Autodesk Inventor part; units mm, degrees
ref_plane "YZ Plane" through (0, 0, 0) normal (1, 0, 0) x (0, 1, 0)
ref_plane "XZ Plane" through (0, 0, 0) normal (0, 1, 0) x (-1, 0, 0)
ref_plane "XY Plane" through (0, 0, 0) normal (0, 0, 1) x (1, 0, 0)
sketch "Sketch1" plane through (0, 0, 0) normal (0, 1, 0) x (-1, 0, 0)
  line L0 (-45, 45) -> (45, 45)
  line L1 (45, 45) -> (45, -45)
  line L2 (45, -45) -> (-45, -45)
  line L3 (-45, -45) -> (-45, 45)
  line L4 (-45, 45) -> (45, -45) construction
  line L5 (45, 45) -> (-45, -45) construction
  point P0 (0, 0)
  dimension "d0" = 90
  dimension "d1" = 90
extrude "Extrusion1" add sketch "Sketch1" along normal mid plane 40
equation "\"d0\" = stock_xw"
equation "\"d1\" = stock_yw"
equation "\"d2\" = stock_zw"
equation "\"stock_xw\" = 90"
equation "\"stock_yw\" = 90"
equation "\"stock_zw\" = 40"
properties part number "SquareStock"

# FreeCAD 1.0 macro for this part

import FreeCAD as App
import Part
import Sketcher

V = App.Vector

doc = App.newDocument("Part")
body = doc.addObject("PartDesign::Body", "Body")

sketch1 = doc.addObject("Sketcher::SketchObject", "Sketch")
body.addObject(sketch1)
sketch1.AttachmentSupport = (doc.XZ_Plane, [""])
sketch1.MapMode = "FlatFace"
sketch1.addGeometry([
    Part.LineSegment(V(-45, 45, 0), V(45, 45, 0)),
    Part.LineSegment(V(45, 45, 0), V(45, -45, 0)),
    Part.LineSegment(V(45, -45, 0), V(-45, -45, 0)),
    Part.LineSegment(V(-45, -45, 0), V(-45, 45, 0)),
], False)
sketch1.addConstraint([
    Sketcher.Constraint("Coincident", 0, 2, 1, 1),
    Sketcher.Constraint("Coincident", 1, 2, 2, 1),
    Sketcher.Constraint("Coincident", 2, 2, 3, 1),
    Sketcher.Constraint("Coincident", 3, 2, 0, 1),
    Sketcher.Constraint("Horizontal", 0),
    Sketcher.Constraint("Vertical", 1),
    Sketcher.Constraint("Horizontal", 2),
    Sketcher.Constraint("Vertical", 3),
    Sketcher.Constraint("Symmetric", 0, 2, 2, 2, -1, 1),
    Sketcher.Constraint("Equal", 2, 1),
    Sketcher.Constraint("DistanceX", 0, 1, 0, 2, 90.0),
])
pad1 = doc.addObject("PartDesign::Pad", "Pad")
body.addObject(pad1)
pad1.Profile = sketch1
pad1.Length = 40
pad1.Midplane = True

doc.recompute()
